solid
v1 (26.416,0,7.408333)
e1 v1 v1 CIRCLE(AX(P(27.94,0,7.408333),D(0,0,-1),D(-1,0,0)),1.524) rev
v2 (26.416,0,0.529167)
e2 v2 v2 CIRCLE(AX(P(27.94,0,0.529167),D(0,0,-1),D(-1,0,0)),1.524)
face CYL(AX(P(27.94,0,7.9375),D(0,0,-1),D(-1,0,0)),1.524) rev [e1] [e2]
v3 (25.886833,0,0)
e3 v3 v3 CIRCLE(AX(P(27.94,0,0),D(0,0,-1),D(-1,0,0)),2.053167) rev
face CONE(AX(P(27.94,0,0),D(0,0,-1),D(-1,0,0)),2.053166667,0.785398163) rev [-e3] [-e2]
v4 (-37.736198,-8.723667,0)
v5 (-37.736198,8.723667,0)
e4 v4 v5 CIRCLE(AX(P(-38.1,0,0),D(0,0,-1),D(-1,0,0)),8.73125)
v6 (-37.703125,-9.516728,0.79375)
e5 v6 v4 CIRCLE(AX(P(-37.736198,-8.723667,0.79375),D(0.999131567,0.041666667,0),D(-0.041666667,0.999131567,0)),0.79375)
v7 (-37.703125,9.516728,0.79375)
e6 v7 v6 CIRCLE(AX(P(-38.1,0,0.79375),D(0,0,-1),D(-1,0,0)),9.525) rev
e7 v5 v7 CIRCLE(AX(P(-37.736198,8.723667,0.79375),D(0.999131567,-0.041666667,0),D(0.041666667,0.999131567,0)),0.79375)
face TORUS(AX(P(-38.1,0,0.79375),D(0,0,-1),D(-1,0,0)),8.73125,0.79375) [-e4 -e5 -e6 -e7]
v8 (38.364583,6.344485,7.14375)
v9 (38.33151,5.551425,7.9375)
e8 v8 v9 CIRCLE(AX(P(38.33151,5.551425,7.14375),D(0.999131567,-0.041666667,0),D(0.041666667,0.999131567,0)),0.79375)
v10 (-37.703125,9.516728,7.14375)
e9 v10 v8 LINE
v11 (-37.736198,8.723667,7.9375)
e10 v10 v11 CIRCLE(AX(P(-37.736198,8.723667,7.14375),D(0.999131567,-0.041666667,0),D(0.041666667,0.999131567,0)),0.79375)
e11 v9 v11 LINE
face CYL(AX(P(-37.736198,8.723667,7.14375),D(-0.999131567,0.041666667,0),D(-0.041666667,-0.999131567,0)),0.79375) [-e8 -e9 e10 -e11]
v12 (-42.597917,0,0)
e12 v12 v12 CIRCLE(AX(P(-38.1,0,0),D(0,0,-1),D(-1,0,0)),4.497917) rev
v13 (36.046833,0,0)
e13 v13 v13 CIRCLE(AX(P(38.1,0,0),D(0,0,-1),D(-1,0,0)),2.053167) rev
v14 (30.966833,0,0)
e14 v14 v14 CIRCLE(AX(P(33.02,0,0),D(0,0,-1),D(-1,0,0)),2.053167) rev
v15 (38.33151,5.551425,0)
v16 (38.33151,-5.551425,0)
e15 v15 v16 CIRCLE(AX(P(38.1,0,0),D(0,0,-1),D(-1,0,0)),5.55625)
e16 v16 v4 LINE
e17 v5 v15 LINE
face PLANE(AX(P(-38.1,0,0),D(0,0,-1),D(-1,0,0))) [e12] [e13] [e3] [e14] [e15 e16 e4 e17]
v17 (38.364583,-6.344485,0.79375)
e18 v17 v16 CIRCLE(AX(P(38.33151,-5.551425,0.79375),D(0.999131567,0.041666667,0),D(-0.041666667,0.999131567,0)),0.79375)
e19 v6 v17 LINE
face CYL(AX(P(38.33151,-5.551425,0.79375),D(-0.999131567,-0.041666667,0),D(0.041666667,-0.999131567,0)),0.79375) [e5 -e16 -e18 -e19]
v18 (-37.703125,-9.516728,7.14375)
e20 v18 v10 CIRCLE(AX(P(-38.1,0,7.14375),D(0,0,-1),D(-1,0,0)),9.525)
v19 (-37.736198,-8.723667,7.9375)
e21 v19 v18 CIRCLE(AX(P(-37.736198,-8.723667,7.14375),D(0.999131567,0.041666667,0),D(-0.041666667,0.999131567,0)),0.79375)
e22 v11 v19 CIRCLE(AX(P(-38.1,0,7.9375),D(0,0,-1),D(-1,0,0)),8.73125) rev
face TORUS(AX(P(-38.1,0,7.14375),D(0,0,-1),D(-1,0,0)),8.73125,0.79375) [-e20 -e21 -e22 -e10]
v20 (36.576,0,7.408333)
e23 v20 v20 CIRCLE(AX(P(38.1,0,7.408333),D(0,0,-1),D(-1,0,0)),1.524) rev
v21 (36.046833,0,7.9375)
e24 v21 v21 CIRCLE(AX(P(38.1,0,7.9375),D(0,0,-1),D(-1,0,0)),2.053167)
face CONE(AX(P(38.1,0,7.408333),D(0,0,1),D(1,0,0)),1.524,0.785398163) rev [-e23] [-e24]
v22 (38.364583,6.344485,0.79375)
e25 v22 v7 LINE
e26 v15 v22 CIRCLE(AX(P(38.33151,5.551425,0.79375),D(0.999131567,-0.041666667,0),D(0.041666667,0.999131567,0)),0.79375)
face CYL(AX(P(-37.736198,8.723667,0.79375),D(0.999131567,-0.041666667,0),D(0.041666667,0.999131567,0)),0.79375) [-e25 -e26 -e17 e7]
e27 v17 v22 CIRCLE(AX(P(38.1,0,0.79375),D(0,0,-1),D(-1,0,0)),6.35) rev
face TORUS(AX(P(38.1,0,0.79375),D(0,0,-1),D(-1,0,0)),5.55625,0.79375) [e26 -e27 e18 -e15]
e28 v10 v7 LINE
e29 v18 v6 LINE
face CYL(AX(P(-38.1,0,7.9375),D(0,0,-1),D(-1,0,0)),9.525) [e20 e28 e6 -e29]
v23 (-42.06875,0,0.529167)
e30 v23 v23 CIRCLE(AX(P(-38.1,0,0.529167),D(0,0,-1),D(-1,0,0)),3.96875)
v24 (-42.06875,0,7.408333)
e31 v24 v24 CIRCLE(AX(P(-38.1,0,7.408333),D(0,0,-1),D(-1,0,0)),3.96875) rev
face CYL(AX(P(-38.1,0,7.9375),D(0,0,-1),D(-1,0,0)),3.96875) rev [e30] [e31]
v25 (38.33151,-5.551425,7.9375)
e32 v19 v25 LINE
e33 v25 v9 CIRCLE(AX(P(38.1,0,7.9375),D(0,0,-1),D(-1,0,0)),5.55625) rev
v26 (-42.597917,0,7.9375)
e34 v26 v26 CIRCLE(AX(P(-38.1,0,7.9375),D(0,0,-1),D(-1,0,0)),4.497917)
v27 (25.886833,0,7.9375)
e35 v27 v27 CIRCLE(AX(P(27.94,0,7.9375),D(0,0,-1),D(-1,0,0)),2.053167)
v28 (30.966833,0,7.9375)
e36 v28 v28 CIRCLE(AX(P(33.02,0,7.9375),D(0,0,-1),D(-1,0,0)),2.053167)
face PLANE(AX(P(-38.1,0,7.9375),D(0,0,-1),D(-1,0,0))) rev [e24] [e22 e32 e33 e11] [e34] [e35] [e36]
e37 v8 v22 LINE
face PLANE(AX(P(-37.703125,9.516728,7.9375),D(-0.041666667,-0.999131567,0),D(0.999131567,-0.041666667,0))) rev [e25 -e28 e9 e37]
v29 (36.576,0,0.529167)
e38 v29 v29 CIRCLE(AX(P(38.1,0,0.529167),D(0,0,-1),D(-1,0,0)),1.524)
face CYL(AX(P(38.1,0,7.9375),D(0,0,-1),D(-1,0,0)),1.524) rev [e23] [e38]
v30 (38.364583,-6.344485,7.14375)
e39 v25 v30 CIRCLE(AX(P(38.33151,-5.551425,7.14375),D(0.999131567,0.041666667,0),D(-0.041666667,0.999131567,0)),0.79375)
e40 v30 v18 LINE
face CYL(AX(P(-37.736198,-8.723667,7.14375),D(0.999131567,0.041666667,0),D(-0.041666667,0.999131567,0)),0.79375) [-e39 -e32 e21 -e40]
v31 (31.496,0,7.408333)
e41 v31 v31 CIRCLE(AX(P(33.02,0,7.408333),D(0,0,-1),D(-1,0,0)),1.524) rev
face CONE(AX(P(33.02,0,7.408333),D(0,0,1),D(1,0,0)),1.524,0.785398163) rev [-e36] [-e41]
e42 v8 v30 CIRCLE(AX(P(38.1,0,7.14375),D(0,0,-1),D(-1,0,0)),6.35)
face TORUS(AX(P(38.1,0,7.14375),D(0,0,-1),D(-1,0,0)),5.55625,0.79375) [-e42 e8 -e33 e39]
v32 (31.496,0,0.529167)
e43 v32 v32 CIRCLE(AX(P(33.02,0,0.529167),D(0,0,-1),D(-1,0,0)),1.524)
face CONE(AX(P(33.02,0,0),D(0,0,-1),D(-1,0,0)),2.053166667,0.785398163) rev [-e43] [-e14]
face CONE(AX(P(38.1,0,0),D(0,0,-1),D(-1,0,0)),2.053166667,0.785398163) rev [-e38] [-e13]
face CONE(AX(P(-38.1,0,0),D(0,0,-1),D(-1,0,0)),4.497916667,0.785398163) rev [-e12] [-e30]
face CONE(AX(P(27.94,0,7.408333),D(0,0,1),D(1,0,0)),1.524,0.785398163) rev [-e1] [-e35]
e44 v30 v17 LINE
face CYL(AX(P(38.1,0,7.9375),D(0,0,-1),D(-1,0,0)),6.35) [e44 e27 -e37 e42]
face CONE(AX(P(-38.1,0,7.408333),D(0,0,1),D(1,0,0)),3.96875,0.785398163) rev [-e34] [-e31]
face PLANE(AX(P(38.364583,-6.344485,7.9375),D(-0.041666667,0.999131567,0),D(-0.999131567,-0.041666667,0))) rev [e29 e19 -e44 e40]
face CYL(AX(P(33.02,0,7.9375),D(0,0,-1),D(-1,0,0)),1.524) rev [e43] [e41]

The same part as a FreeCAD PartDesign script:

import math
import FreeCAD as App
import Part
import Sketcher

V = App.Vector
Q = App.Units.Quantity


def edges_at(feature, points):
    """Names of the edges that pass closest to the given points."""
    edges = feature.Shape.Edges
    near = lambda p: min(range(len(edges)), key=lambda i: edges[i].distToShape(Part.Vertex(*p))[0])
    return sorted({f"Edge{near(p) + 1}" for p in points})

doc = App.newDocument("Part")
body = doc.addObject("PartDesign::Body", "Body")

sketch1 = body.newObject("Sketcher::SketchObject", "Sketch")
sketch1.AttachmentSupport = (doc.getObject("XY_Plane"), [""])
sketch1.MapMode = "FlatFace"
sketch1.addGeometry([
    Part.LineSegment(V(38.4, 6.3, 0), V(-37.7, 9.5, 0)),
    Part.ArcOfCircle(Part.Circle(V(-38.1, 0, 0), V(0, 0, 1), 9.5), math.radians(88), math.radians(272)),
    Part.LineSegment(V(-37.7, -9.5, 0), V(38.4, -6.3, 0)),
    Part.ArcOfCircle(Part.Circle(V(38.1, 0, 0), V(0, 0, 1), 6.3), math.radians(-88), math.radians(88)),
    Part.Circle(V(38.1, 0, 0), V(0, 0, 1), 1.5),
    Part.Circle(V(33, 0, 0), V(0, 0, 1), 1.5),
    Part.Circle(V(27.9, 0, 0), V(0, 0, 1), 1.5),
    Part.Circle(V(-38.1, 0, 0), V(0, 0, 1), 4),
], False)
sketch1.addConstraint([
    Sketcher.Constraint("Tangent", 0, 2, 1, 1),
    Sketcher.Constraint("Tangent", 1, 2, 2, 1),
    Sketcher.Constraint("Tangent", 2, 2, 3, 1),
    Sketcher.Constraint("Tangent", 3, 2, 0, 1),
    Sketcher.Constraint("Coincident", 4, 3, 3, 3),
    Sketcher.Constraint("Coincident", 7, 3, 1, 3),
    Sketcher.Constraint("Equal", 4, 5),
    Sketcher.Constraint("Equal", 5, 6),
    Sketcher.Constraint("Symmetric", 1, 3, 3, 3, -1, 1),
    Sketcher.Constraint("PointOnObject", 1, 3, -1),
    Sketcher.Constraint("PointOnObject", 5, 3, -1),
    Sketcher.Constraint("PointOnObject", 6, 3, -1),
    Sketcher.Constraint("Diameter", 4, Q("0.12 in")),
    Sketcher.Constraint("Radius", 3, Q("0.25 in")),
    Sketcher.Constraint("Diameter", 7, Q("0.3125 in")),
    Sketcher.Constraint("Radius", 1, Q("0.375 in")),
    Sketcher.Constraint("DistanceX", 1, 3, 3, 3, Q("3 in")),
    Sketcher.Constraint("DistanceX", -1, 1, 5, 3, Q("1.3 in")),
    Sketcher.Constraint("DistanceX", -1, 1, 6, 3, Q("1.1 in")),
])
pad1 = body.newObject("PartDesign::Pad", "Pad")
pad1.Profile = sketch1
pad1.Length = Q("0.3125 in")
doc.recompute()

fillet = body.newObject("PartDesign::Fillet", "Fillet")
fillet.Base = (pad1, edges_at(pad1, [
    (44.45, 0, 7.938),
    (0.331, 7.931, 7.938),
    (-47.625, 0, 7.938),
    (0.331, 7.931, 0),
    (44.45, 0, 0),
    (0.331, -7.931, 0),
    (-47.625, 0, 0),
    (0.331, -7.931, 7.938),
]))
fillet.Radius = Q("0.03125 in")
doc.recompute()

chamfer = body.newObject("PartDesign::Chamfer", "Chamfer")
chamfer.Base = (fillet, edges_at(fillet, [
    (-42.069, 0, 0),
    (-42.069, 0, 7.938),
    (36.576, 0, 0),
    (36.576, 0, 7.938),
    (31.496, 0, 0),
    (31.496, 0, 7.938),
    (26.416, 0, 0),
    (26.416, 0, 7.938),
]))
chamfer.Size = 0.529167

doc.recompute()
